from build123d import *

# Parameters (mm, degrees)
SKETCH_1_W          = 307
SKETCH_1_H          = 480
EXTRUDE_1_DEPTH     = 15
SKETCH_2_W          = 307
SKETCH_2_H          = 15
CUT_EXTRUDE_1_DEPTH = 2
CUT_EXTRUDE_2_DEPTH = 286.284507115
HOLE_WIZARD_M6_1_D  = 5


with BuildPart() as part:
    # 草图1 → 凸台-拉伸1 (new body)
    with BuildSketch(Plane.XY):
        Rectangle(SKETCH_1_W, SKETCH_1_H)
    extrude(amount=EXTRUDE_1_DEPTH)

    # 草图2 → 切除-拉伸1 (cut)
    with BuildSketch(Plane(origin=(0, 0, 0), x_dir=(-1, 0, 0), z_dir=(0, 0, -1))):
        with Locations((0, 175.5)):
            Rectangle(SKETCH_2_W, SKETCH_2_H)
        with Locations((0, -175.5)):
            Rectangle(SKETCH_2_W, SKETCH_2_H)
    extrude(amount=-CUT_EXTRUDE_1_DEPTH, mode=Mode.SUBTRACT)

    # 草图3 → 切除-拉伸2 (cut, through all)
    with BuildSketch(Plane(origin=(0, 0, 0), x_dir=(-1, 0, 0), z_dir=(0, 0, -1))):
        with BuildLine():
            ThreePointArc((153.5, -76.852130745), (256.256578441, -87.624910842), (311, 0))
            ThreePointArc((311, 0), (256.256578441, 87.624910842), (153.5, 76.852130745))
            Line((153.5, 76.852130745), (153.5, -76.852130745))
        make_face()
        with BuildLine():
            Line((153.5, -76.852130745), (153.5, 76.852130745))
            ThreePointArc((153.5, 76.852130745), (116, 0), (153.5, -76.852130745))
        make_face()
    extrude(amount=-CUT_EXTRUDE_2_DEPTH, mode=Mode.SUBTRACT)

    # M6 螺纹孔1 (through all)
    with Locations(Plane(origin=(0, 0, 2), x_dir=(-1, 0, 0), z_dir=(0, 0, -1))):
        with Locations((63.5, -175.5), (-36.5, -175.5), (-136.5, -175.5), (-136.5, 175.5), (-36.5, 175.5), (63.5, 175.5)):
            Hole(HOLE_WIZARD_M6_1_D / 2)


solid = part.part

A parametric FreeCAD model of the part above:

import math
import FreeCAD as App
import Part
import Sketcher

V = App.Vector


def add_polygon(sketch, points):
    """Adds a closed chain of lines whose ends are joined by coincident constraints."""
    first, n = sketch.GeometryCount, len(points)
    for a, b in zip(points, points[1:] + points[:1]):
        sketch.addGeometry(Part.LineSegment(App.Vector(*a, 0), App.Vector(*b, 0)), False)
    for i in range(n):
        sketch.addConstraint(Sketcher.Constraint("Coincident", first + i, 2, first + (i + 1) % n, 1))

doc = App.newDocument("Part")
params = doc.addObject("Spreadsheet::Sheet", "Params")
for row, (alias, value) in enumerate([
    ("sketch1_width", "307 mm"),
    ("sketch1_height", "480 mm"),
    ("pad1_length", "15 mm"),
    ("sketch2_width", "307 mm"),
    ("sketch2_height", "15 mm"),
    ("pocket1_length", "2 mm"),
    ("sketch3_radius", "97.5 mm"),
    ("sketch4_diameter", "5 mm"),
    ("hole_diameter", "5 mm"),
], start=1):
    params.set(f"A{row}", alias)
    params.set(f"B{row}", "=" + value)
    params.setAlias(f"B{row}", alias)

body = doc.addObject("PartDesign::Body", "Body")

sketch1 = body.newObject("Sketcher::SketchObject", "Sketch")
sketch1.AttachmentSupport = (doc.getObject("XY_Plane"), [""])
sketch1.MapMode = "FlatFace"
add_polygon(sketch1, [(-154, 240), (-154, -240), (154, -240), (154, 240)])
sketch1.addConstraint([
    Sketcher.Constraint("Vertical", 0),
    Sketcher.Constraint("Horizontal", 1),
    Sketcher.Constraint("Vertical", 2),
    Sketcher.Constraint("Horizontal", 3),
    Sketcher.Constraint("Symmetric", 0, 2, 2, 2, -1, 1),
    Sketcher.Constraint("DistanceX", 1, 1, 1, 2, 307.0),
    Sketcher.Constraint("DistanceY", 0, 2, 0, 1, 480.0),
])
sketch1.setExpression("Constraints[9]", "Params.sketch1_width")
sketch1.setExpression("Constraints[10]", "Params.sketch1_height")
pad1 = body.newObject("PartDesign::Pad", "Pad")
pad1.Profile = sketch1
pad1.setExpression("Length", "Params.pad1_length")

sketch2 = body.newObject("Sketcher::SketchObject", "Sketch001")
sketch2.AttachmentSupport = (doc.getObject("XY_Plane"), [""])
sketch2.MapMode = "FlatFace"
add_polygon(sketch2, [(154, 183), (154, 168), (-154, 168), (-154, 183)])
add_polygon(sketch2, [(154, -168), (154, -183), (-154, -183), (-154, -168)])
sketch2.addConstraint([
    Sketcher.Constraint("Vertical", 0),
    Sketcher.Constraint("Horizontal", 1),
    Sketcher.Constraint("Vertical", 2),
    Sketcher.Constraint("Horizontal", 3),
    Sketcher.Constraint("Vertical", 4),
    Sketcher.Constraint("Horizontal", 5),
    Sketcher.Constraint("Vertical", 6),
    Sketcher.Constraint("Horizontal", 7),
    Sketcher.Constraint("Symmetric", 2, 2, 4, 2, -1, 1),
    Sketcher.Constraint("Symmetric", 0, 2, 6, 2, -1, 1),
    Sketcher.Constraint("Vertical", 3, 2, 4, 2),
    Sketcher.Constraint("DistanceX", 1, 2, 1, 1, 307.0),
    Sketcher.Constraint("DistanceY", 0, 2, 0, 1, 15.0),
    Sketcher.Constraint("DistanceY", -1, 1, 0, 2, 168.0),
])
sketch2.setExpression("Constraints[19]", "Params.sketch2_width")
sketch2.setExpression("Constraints[20]", "Params.sketch2_height")
pocket1 = body.newObject("PartDesign::Pocket", "Pocket")
pocket1.Profile = sketch2
pocket1.setExpression("Length", "Params.pocket1_length")
pocket1.Reversed = True

sketch3 = body.newObject("Sketcher::SketchObject", "Sketch002")
sketch3.AttachmentSupport = (doc.getObject("XY_Plane"), [""])
sketch3.MapMode = "FlatFace"
sketch3.addGeometry([
    Part.ArcOfCircle(Part.Circle(V(-214, 0, 0), V(0, 0, 1), 98), math.radians(180), math.radians(308)),
    Part.ArcOfCircle(Part.Circle(V(-214, 0, 0), V(0, 0, 1), 98), math.radians(52), math.radians(180)),
    Part.ArcOfCircle(Part.Circle(V(-214, 0, 0), V(0, 0, 1), 98), math.radians(-52), math.radians(52)),
], False)
sketch3.addConstraint([
    Sketcher.Constraint("Tangent", 0, 1, 1, 2),
    Sketcher.Constraint("Tangent", 1, 1, 2, 2),
    Sketcher.Constraint("Tangent", 2, 1, 0, 2),
    Sketcher.Constraint("Symmetric", 1, 1, 2, 1, -1),
    Sketcher.Constraint("PointOnObject", 0, 1, -1),
    Sketcher.Constraint("Radius", 0, 97.5),
    Sketcher.Constraint("DistanceX", 0, 1, -1, 1, 311.0),
    Sketcher.Constraint("DistanceX", 0, 3, 1, 1, 60.0),
])
sketch3.setExpression("Constraints[5]", "Params.sketch3_radius")
pocket2 = body.newObject("PartDesign::Pocket", "Pocket001")
pocket2.Profile = sketch3
pocket2.Type = "ThroughAll"
pocket2.Reversed = True

sketch4 = body.newObject("Sketcher::SketchObject", "Sketch003")
sketch4.AttachmentSupport = (doc.getObject("XY_Plane"), [""])
sketch4.MapMode = "FlatFace"
sketch4.AttachmentOffset = App.Placement(V(0, 0, 2), App.Rotation())
sketch4.addGeometry([
    Part.Circle(V(-63.5, -175.5, 0), V(0, 0, 1), 2.5),
    Part.Circle(V(36.5, -175.5, 0), V(0, 0, 1), 2.5),
    Part.Circle(V(136.5, -175.5, 0), V(0, 0, 1), 2.5),
    Part.Circle(V(136.5, 175.5, 0), V(0, 0, 1), 2.5),
    Part.Circle(V(36.5, 175.5, 0), V(0, 0, 1), 2.5),
    Part.Circle(V(-63.5, 175.5, 0), V(0, 0, 1), 2.5),
], False)
sketch4.addConstraint([
    Sketcher.Constraint("Equal", 0, 1),
    Sketcher.Constraint("Equal", 1, 2),
    Sketcher.Constraint("Equal", 2, 3),
    Sketcher.Constraint("Equal", 3, 4),
    Sketcher.Constraint("Equal", 4, 5),
    Sketcher.Constraint("Symmetric", 2, 3, 3, 3, -1),
    Sketcher.Constraint("Symmetric", 1, 3, 4, 3, -1),
    Sketcher.Constraint("Symmetric", 0, 3, 5, 3, -1),
    Sketcher.Constraint("Horizontal", 0, 3, 1, 3),
    Sketcher.Constraint("Horizontal", 1, 3, 2, 3),
    Sketcher.Constraint("Diameter", 0, 5.0),
    Sketcher.Constraint("DistanceX", 0, 3, 1, 3, 100.0),
    Sketcher.Constraint("DistanceX", 1, 3, 2, 3, 100.0),
    Sketcher.Constraint("DistanceY", 2, 3, 3, 3, 351.0),
    Sketcher.Constraint("DistanceX", 0, 3, -1, 1, 63.5),
])
sketch4.setExpression("Constraints[10]", "Params.sketch4_diameter")
doc.recompute()
hole = body.newObject("PartDesign::Hole", "Hole")
hole.Profile = sketch4
hole.ThreadType = "None"
hole.setExpression("Diameter", "Params.hole_diameter")
hole.DepthType = "ThroughAll"
hole.Reversed = True

doc.recompute()
